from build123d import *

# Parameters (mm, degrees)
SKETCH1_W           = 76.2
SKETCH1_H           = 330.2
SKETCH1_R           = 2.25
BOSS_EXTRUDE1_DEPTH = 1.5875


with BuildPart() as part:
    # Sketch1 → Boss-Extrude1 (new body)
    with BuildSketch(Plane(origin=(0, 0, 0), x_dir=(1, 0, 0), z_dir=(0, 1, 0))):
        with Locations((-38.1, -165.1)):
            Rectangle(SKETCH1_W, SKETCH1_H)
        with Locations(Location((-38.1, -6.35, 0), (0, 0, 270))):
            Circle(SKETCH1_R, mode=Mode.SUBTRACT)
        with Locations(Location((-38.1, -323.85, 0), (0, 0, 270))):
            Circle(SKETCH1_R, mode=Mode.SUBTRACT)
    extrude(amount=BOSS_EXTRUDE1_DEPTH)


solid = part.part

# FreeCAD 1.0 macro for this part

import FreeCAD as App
import Part
import Sketcher
Q = App.Units.Quantity

doc = App.newDocument("Part")
params = doc.addObject("Spreadsheet::Sheet", "Params")
for row, (alias, value) in enumerate([
    ("sketch1_width", "3 in"),
    ("sketch1_height", "13 in"),
    ("pad1_length", "0.0625 in"),
], start=1):
    params.set(f"A{row}", alias)
    params.set(f"B{row}", "=" + value)
    params.setAlias(f"B{row}", alias)

body = doc.addObject("PartDesign::Body", "Body")

sketch1 = body.newObject("Sketcher::SketchObject", "Sketch")
sketch1.AttachmentSupport = (doc.getObject("XZ_Plane"), [""])
sketch1.MapMode = "FlatFace"
sketch1.addGeometry([
    Part.LineSegment(App.Vector(-76.2, 0, 0), App.Vector(-76.2, 330.2, 0)),
    Part.LineSegment(App.Vector(-76.2, 330.2, 0), App.Vector(0, 330.2, 0)),
    Part.LineSegment(App.Vector(0, 330.2, 0), App.Vector(0, 0, 0)),
    Part.LineSegment(App.Vector(0, 0, 0), App.Vector(-76.2, 0, 0)),
    Part.Circle(App.Vector(-38.1, 323.9, 0), App.Vector(0, 0, 1), 2.2),
    Part.Circle(App.Vector(-38.1, 6.3, 0), App.Vector(0, 0, 1), 2.2),
], False)
sketch1.addConstraint([
    Sketcher.Constraint("Coincident", 0, 2, 1, 1),
    Sketcher.Constraint("Coincident", 1, 2, 2, 1),
    Sketcher.Constraint("Coincident", 2, 2, 3, 1),
    Sketcher.Constraint("Coincident", 3, 2, 0, 1),
    Sketcher.Constraint("Vertical", 0),
    Sketcher.Constraint("Horizontal", 1),
    Sketcher.Constraint("Vertical", 2),
    Sketcher.Constraint("Horizontal", 3),
    Sketcher.Constraint("Coincident", 2, 2, -1, 1),
    Sketcher.Constraint("Equal", 4, 5),
    Sketcher.Constraint("Vertical", 4, 3, 5, 3),
    Sketcher.Constraint("DistanceX", 1, 1, 1, 2, Q("3 in")),
    Sketcher.Constraint("DistanceY", 0, 1, 0, 2, Q("13 in")),
    Sketcher.Constraint("DistanceX", 4, 3, -1, 1, Q("1.5 in")),
    Sketcher.Constraint("DistanceY", 5, 3, 4, 3, Q("12.5 in")),
    Sketcher.Constraint("Diameter", 4, 4.5),
    Sketcher.Constraint("DistanceY", -1, 1, 4, 3, Q("12.75 in")),
])
sketch1.setExpression("Constraints[11]", "Params.sketch1_width")
sketch1.setExpression("Constraints[12]", "Params.sketch1_height")
pad1 = body.newObject("PartDesign::Pad", "Pad")
pad1.Profile = sketch1
pad1.setExpression("Length", "Params.pad1_length")
pad1.Reversed = True

doc.recompute()
